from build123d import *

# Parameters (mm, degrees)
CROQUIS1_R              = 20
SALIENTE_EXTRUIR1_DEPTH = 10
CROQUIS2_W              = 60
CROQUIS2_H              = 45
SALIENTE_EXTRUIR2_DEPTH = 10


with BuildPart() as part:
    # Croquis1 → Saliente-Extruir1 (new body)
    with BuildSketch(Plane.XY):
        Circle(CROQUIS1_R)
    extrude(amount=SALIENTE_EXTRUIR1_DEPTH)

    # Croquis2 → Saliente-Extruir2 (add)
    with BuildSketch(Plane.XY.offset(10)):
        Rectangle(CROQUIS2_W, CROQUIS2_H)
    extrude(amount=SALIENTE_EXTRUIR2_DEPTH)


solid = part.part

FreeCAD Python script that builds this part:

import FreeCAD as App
import Part
import Sketcher

V = App.Vector

doc = App.newDocument("Part")
body = doc.addObject("PartDesign::Body", "Body")

# Sketch on XY plane
sketch1 = doc.addObject("Sketcher::SketchObject", "Sketch")
body.addObject(sketch1)
sketch1.AttachmentSupport = (doc.XY_Plane, [""])
sketch1.MapMode = "FlatFace"
sketch1.addGeometry(Part.Circle(V(0, 0, 0), V(0, 0, 1), 20), False)
sketch1.addConstraint([
    Sketcher.Constraint("Coincident", 0, 3, -1, 1),
    Sketcher.Constraint("Diameter", 0, 40.0),
])
pad1 = doc.addObject("PartDesign::Pad", "Pad")
body.addObject(pad1)
pad1.Profile = sketch1
pad1.Length = 10

# Sketch on XY plane
sketch2 = doc.addObject("Sketcher::SketchObject", "Sketch001")
body.addObject(sketch2)
sketch2.AttachmentSupport = (doc.XY_Plane, [""])
sketch2.MapMode = "FlatFace"
sketch2.AttachmentOffset = App.Placement(V(0, 0, 10), App.Rotation())
sketch2.addGeometry([
    Part.LineSegment(V(-30, 22, 0), V(-30, -22, 0)),
    Part.LineSegment(V(-30, -22, 0), V(30, -22, 0)),
    Part.LineSegment(V(30, -22, 0), V(30, 22, 0)),
    Part.LineSegment(V(30, 22, 0), V(-30, 22, 0)),
], False)
sketch2.addConstraint([
    Sketcher.Constraint("Coincident", 0, 2, 1, 1),
    Sketcher.Constraint("Coincident", 1, 2, 2, 1),
    Sketcher.Constraint("Coincident", 2, 2, 3, 1),
    Sketcher.Constraint("Coincident", 3, 2, 0, 1),
    Sketcher.Constraint("Vertical", 0),
    Sketcher.Constraint("Horizontal", 1),
    Sketcher.Constraint("Vertical", 2),
    Sketcher.Constraint("Horizontal", 3),
    Sketcher.Constraint("Symmetric", 0, 2, 2, 2, -1, 1),
    Sketcher.Constraint("DistanceX", 1, 1, 1, 2, 60.0),
    Sketcher.Constraint("DistanceY", 0, 2, 0, 1, 45.0),
])
pad2 = doc.addObject("PartDesign::Pad", "Pad001")
body.addObject(pad2)
pad2.Profile = sketch2
pad2.Length = 10

doc.recompute()
